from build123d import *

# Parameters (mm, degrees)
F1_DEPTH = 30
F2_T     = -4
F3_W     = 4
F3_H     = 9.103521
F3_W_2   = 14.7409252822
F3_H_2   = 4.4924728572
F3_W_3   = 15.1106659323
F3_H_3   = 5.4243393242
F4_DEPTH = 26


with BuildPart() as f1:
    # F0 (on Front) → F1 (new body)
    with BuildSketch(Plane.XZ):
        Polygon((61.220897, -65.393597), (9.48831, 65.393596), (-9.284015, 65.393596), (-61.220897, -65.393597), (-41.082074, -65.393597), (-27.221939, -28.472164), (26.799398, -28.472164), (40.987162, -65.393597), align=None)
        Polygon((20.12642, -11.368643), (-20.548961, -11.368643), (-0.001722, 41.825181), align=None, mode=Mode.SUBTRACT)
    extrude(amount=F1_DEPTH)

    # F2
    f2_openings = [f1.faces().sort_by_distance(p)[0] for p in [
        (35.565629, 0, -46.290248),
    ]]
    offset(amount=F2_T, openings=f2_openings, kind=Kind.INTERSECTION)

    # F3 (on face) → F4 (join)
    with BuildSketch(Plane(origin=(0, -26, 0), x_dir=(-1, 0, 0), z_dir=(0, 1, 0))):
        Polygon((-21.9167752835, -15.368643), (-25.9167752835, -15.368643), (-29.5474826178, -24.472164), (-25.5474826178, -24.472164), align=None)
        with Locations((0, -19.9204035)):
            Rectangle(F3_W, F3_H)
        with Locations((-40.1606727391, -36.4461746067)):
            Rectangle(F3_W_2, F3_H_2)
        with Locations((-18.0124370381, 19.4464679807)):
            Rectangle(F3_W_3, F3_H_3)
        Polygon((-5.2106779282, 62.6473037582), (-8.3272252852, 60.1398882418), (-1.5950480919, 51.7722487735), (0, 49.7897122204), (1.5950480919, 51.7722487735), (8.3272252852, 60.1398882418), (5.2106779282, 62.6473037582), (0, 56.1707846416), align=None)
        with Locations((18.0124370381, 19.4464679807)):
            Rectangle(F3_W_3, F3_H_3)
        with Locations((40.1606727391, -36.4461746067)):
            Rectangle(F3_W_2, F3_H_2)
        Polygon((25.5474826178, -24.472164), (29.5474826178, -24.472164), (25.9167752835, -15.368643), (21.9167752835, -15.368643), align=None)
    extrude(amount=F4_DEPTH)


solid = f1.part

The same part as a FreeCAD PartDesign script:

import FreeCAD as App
import Part
import Sketcher
from FreeCAD import Vector
Q = App.Units.Quantity


def faces_at(feature, points):
    """Names of the faces that lie closest to the given points."""
    faces = feature.Shape.Faces
    near = lambda p: min(range(len(faces)), key=lambda i: faces[i].distToShape(Part.Vertex(*p))[0])
    return sorted({f"Face{near(p) + 1}" for p in points})

doc = App.newDocument("Part")
params = doc.addObject("Spreadsheet::Sheet", "Params")
for row, (alias, value) in enumerate([
    ("pad1_length", "30 mm"),
    ("thickness_wall", "4 mm"),
    ("sketch2_width", "4 mm"),
    ("sketch2_length", "4 mm"),
    ("pad2_length", "26 mm"),
], start=1):
    params.set(f"A{row}", alias)
    params.set(f"B{row}", "=" + value)
    params.setAlias(f"B{row}", alias)

body = doc.addObject("PartDesign::Body", "Body")

# Sketch on XZ plane
sketch1 = body.newObject("Sketcher::SketchObject", "Sketch")
sketch1.AttachmentSupport = (doc.getObject("XZ_Plane"), [""])
sketch1.MapMode = "FlatFace"
sketch1.addGeometry(Part.LineSegment(Vector(61, -65, 0), Vector(9, 65, 0)), False)
sketch1.addGeometry(Part.LineSegment(Vector(9, 65, 0), Vector(-9, 65, 0)), False)
sketch1.addGeometry(Part.LineSegment(Vector(-9, 65, 0), Vector(-61, -65, 0)), False)
sketch1.addGeometry(Part.LineSegment(Vector(-61, -65, 0), Vector(-41, -65, 0)), False)
sketch1.addGeometry(Part.LineSegment(Vector(-41, -65, 0), Vector(-27, -28, 0)), False)
sketch1.addGeometry(Part.LineSegment(Vector(-27, -28, 0), Vector(27, -28, 0)), False)
sketch1.addGeometry(Part.LineSegment(Vector(27, -28, 0), Vector(41, -65, 0)), False)
sketch1.addGeometry(Part.LineSegment(Vector(41, -65, 0), Vector(61, -65, 0)), False)
sketch1.addGeometry(Part.LineSegment(Vector(0, 42, 0), Vector(20, -11, 0)), False)
sketch1.addGeometry(Part.LineSegment(Vector(20, -11, 0), Vector(-21, -11, 0)), False)
sketch1.addGeometry(Part.LineSegment(Vector(-21, -11, 0), Vector(0, 42, 0)), False)
sketch1.addConstraint(Sketcher.Constraint("Coincident", 0, 2, 1, 1))
sketch1.addConstraint(Sketcher.Constraint("Coincident", 1, 2, 2, 1))
sketch1.addConstraint(Sketcher.Constraint("Coincident", 2, 2, 3, 1))
sketch1.addConstraint(Sketcher.Constraint("Coincident", 3, 2, 4, 1))
sketch1.addConstraint(Sketcher.Constraint("Coincident", 4, 2, 5, 1))
sketch1.addConstraint(Sketcher.Constraint("Coincident", 5, 2, 6, 1))
sketch1.addConstraint(Sketcher.Constraint("Coincident", 6, 2, 7, 1))
sketch1.addConstraint(Sketcher.Constraint("Coincident", 7, 2, 0, 1))
sketch1.addConstraint(Sketcher.Constraint("Coincident", 8, 2, 9, 1))
sketch1.addConstraint(Sketcher.Constraint("Coincident", 9, 2, 10, 1))
sketch1.addConstraint(Sketcher.Constraint("Coincident", 10, 2, 8, 1))
sketch1.addConstraint(Sketcher.Constraint("Horizontal", 1))
sketch1.addConstraint(Sketcher.Constraint("Horizontal", 3))
sketch1.addConstraint(Sketcher.Constraint("Horizontal", 5))
sketch1.addConstraint(Sketcher.Constraint("Horizontal", 7))
sketch1.addConstraint(Sketcher.Constraint("Horizontal", 9))
sketch1.addConstraint(Sketcher.Constraint("Symmetric", 2, 2, 7, 2, -2))
sketch1.addConstraint(Sketcher.Constraint("Distance", 0, Q("140.6469 mm")))
sketch1.addConstraint(Sketcher.Constraint("DistanceX", 9, 2, 9, 1, Q("40.675381 mm")))
sketch1.addConstraint(Sketcher.Constraint("DistanceX", -1, 1, 5, 2, Q("26.799398 mm")))
sketch1.addConstraint(Sketcher.Constraint("DistanceX", 4, 2, 6, 2, Q("68.209101 mm")))
sketch1.addConstraint(Sketcher.Constraint("DistanceX", 5, 2, 7, 2, Q("34.421499 mm")))
sketch1.addConstraint(Sketcher.Constraint("Distance", 2, Q("140.722172 mm")))
sketch1.addConstraint(Sketcher.Constraint("Distance", 6, Q("39.55357 mm")))
sketch1.addConstraint(Sketcher.Constraint("Distance", 10, Q("57.02431 mm")))
sketch1.addConstraint(Sketcher.Constraint("DistanceX", 1, 2, 1, 1, Q("18.772325 mm")))
sketch1.addConstraint(Sketcher.Constraint("DistanceX", 3, 1, 3, 2, Q("20.138823 mm")))
sketch1.addConstraint(Sketcher.Constraint("DistanceX", 5, 1, 5, 2, Q("54.021337 mm")))
sketch1.addConstraint(Sketcher.Constraint("DistanceX", -1, 1, 8, 2, Q("20.12642 mm")))
sketch1.addConstraint(Sketcher.Constraint("DistanceY", -1, 1, 10, 2, Q("41.825181 mm")))
sketch1.addConstraint(Sketcher.Constraint("DistanceY", 5, 2, 8, 2, Q("17.103521 mm")))
sketch1.addConstraint(Sketcher.Constraint("DistanceX", 10, 2, 0, 2, Q("9.490032 mm")))
pad1 = body.newObject("PartDesign::Pad", "Pad")
pad1.Profile = sketch1
pad1.setExpression("Length", "Params.pad1_length")
doc.recompute()

thickness = body.newObject("PartDesign::Thickness", "Thickness")
thickness.Base = (pad1, faces_at(pad1, [(-24.488, 0, -26.157)]))
thickness.setExpression("Value", "Params.thickness_wall")
thickness.Reversed = True
thickness.Join = "Intersection"

# Sketch on XZ plane
sketch2 = body.newObject("Sketcher::SketchObject", "Sketch001")
sketch2.AttachmentSupport = (doc.getObject("XZ_Plane"), [""])
sketch2.MapMode = "FlatFace"
sketch2.AttachmentOffset = App.Placement(Vector(0, 0, 26), App.Rotation())
sketch2.addGeometry(Part.LineSegment(Vector(21.9, -15.4, 0), Vector(25.9, -15.4, 0)), False)
sketch2.addGeometry(Part.LineSegment(Vector(25.9, -15.4, 0), Vector(29.5, -24.5, 0)), False)
sketch2.addGeometry(Part.LineSegment(Vector(29.5, -24.5, 0), Vector(25.5, -24.5, 0)), False)
sketch2.addGeometry(Part.LineSegment(Vector(25.5, -24.5, 0), Vector(21.9, -15.4, 0)), False)
sketch2.addGeometry(Part.LineSegment(Vector(2, -15.4, 0), Vector(2, -24.5, 0)), False)
sketch2.addGeometry(Part.LineSegment(Vector(2, -24.5, 0), Vector(-2, -24.5, 0)), False)
sketch2.addGeometry(Part.LineSegment(Vector(-2, -24.5, 0), Vector(-2, -15.4, 0)), False)
sketch2.addGeometry(Part.LineSegment(Vector(-2, -15.4, 0), Vector(2, -15.4, 0)), False)
sketch2.addGeometry(Part.LineSegment(Vector(47.5, -34.2, 0), Vector(47.5, -38.7, 0)), False)
sketch2.addGeometry(Part.LineSegment(Vector(47.5, -38.7, 0), Vector(32.8, -38.7, 0)), False)
sketch2.addGeometry(Part.LineSegment(Vector(32.8, -38.7, 0), Vector(32.8, -34.2, 0)), False)
sketch2.addGeometry(Part.LineSegment(Vector(32.8, -34.2, 0), Vector(47.5, -34.2, 0)), False)
sketch2.addGeometry(Part.LineSegment(Vector(25.6, 22.2, 0), Vector(25.6, 16.7, 0)), False)
sketch2.addGeometry(Part.LineSegment(Vector(25.6, 16.7, 0), Vector(10.5, 16.7, 0)), False)
sketch2.addGeometry(Part.LineSegment(Vector(10.5, 16.7, 0), Vector(10.5, 22.2, 0)), False)
sketch2.addGeometry(Part.LineSegment(Vector(10.5, 22.2, 0), Vector(25.6, 22.2, 0)), False)
sketch2.addGeometry(Part.LineSegment(Vector(5.2, 62.6, 0), Vector(8.3, 60.1, 0)), False)
sketch2.addGeometry(Part.LineSegment(Vector(8.3, 60.1, 0), Vector(1.6, 51.8, 0)), False)
sketch2.addGeometry(Part.LineSegment(Vector(1.6, 51.8, 0), Vector(0, 49.8, 0)), False)
sketch2.addGeometry(Part.LineSegment(Vector(0, 49.8, 0), Vector(-1.6, 51.8, 0)), False)
sketch2.addGeometry(Part.LineSegment(Vector(-1.6, 51.8, 0), Vector(-8.3, 60.1, 0)), False)
sketch2.addGeometry(Part.LineSegment(Vector(-8.3, 60.1, 0), Vector(-5.2, 62.6, 0)), False)
sketch2.addGeometry(Part.LineSegment(Vector(-5.2, 62.6, 0), Vector(0, 56.2, 0)), False)
sketch2.addGeometry(Part.LineSegment(Vector(0, 56.2, 0), Vector(5.2, 62.6, 0)), False)
sketch2.addGeometry(Part.LineSegment(Vector(-10.5, 22.2, 0), Vector(-10.5, 16.7, 0)), False)
sketch2.addGeometry(Part.LineSegment(Vector(-10.5, 16.7, 0), Vector(-25.6, 16.7, 0)), False)
sketch2.addGeometry(Part.LineSegment(Vector(-25.6, 16.7, 0), Vector(-25.6, 22.2, 0)), False)
sketch2.addGeometry(Part.LineSegment(Vector(-25.6, 22.2, 0), Vector(-10.5, 22.2, 0)), False)
sketch2.addGeometry(Part.LineSegment(Vector(-32.8, -34.2, 0), Vector(-32.8, -38.7, 0)), False)
sketch2.addGeometry(Part.LineSegment(Vector(-32.8, -38.7, 0), Vector(-47.5, -38.7, 0)), False)
sketch2.addGeometry(Part.LineSegment(Vector(-47.5, -38.7, 0), Vector(-47.5, -34.2, 0)), False)
sketch2.addGeometry(Part.LineSegment(Vector(-47.5, -34.2, 0), Vector(-32.8, -34.2, 0)), False)
sketch2.addGeometry(Part.LineSegment(Vector(-25.5, -24.5, 0), Vector(-29.5, -24.5, 0)), False)
sketch2.addGeometry(Part.LineSegment(Vector(-29.5, -24.5, 0), Vector(-25.9, -15.4, 0)), False)
sketch2.addGeometry(Part.LineSegment(Vector(-25.9, -15.4, 0), Vector(-21.9, -15.4, 0)), False)
sketch2.addGeometry(Part.LineSegment(Vector(-21.9, -15.4, 0), Vector(-25.5, -24.5, 0)), False)
sketch2.addConstraint(Sketcher.Constraint("Coincident", 0, 2, 1, 1))
sketch2.addConstraint(Sketcher.Constraint("Coincident", 1, 2, 2, 1))
sketch2.addConstraint(Sketcher.Constraint("Coincident", 2, 2, 3, 1))
sketch2.addConstraint(Sketcher.Constraint("Coincident", 3, 2, 0, 1))
sketch2.addConstraint(Sketcher.Constraint("Coincident", 4, 2, 5, 1))
sketch2.addConstraint(Sketcher.Constraint("Coincident", 5, 2, 6, 1))
sketch2.addConstraint(Sketcher.Constraint("Coincident", 6, 2, 7, 1))
sketch2.addConstraint(Sketcher.Constraint("Coincident", 7, 2, 4, 1))
sketch2.addConstraint(Sketcher.Constraint("Coincident", 8, 2, 9, 1))
sketch2.addConstraint(Sketcher.Constraint("Coincident", 9, 2, 10, 1))
sketch2.addConstraint(Sketcher.Constraint("Coincident", 10, 2, 11, 1))
sketch2.addConstraint(Sketcher.Constraint("Coincident", 11, 2, 8, 1))
sketch2.addConstraint(Sketcher.Constraint("Coincident", 12, 2, 13, 1))
sketch2.addConstraint(Sketcher.Constraint("Coincident", 13, 2, 14, 1))
sketch2.addConstraint(Sketcher.Constraint("Coincident", 14, 2, 15, 1))
sketch2.addConstraint(Sketcher.Constraint("Coincident", 15, 2, 12, 1))
sketch2.addConstraint(Sketcher.Constraint("Coincident", 16, 2, 17, 1))
sketch2.addConstraint(Sketcher.Constraint("Coincident", 17, 2, 18, 1))
sketch2.addConstraint(Sketcher.Constraint("Coincident", 18, 2, 19, 1))
sketch2.addConstraint(Sketcher.Constraint("Coincident", 19, 2, 20, 1))
sketch2.addConstraint(Sketcher.Constraint("Coincident", 20, 2, 21, 1))
sketch2.addConstraint(Sketcher.Constraint("Coincident", 21, 2, 22, 1))
sketch2.addConstraint(Sketcher.Constraint("Coincident", 22, 2, 23, 1))
sketch2.addConstraint(Sketcher.Constraint("Coincident", 23, 2, 16, 1))
sketch2.addConstraint(Sketcher.Constraint("Coincident", 24, 2, 25, 1))
sketch2.addConstraint(Sketcher.Constraint("Coincident", 25, 2, 26, 1))
sketch2.addConstraint(Sketcher.Constraint("Coincident", 26, 2, 27, 1))
sketch2.addConstraint(Sketcher.Constraint("Coincident", 27, 2, 24, 1))
sketch2.addConstraint(Sketcher.Constraint("Coincident", 28, 2, 29, 1))
sketch2.addConstraint(Sketcher.Constraint("Coincident", 29, 2, 30, 1))
sketch2.addConstraint(Sketcher.Constraint("Coincident", 30, 2, 31, 1))
sketch2.addConstraint(Sketcher.Constraint("Coincident", 31, 2, 28, 1))
sketch2.addConstraint(Sketcher.Constraint("Coincident", 32, 2, 33, 1))
sketch2.addConstraint(Sketcher.Constraint("Coincident", 33, 2, 34, 1))
sketch2.addConstraint(Sketcher.Constraint("Coincident", 34, 2, 35, 1))
sketch2.addConstraint(Sketcher.Constraint("Coincident", 35, 2, 32, 1))
sketch2.addConstraint(Sketcher.Constraint("Horizontal", 0))
sketch2.addConstraint(Sketcher.Constraint("Horizontal", 2))
sketch2.addConstraint(Sketcher.Constraint("Vertical", 4))
sketch2.addConstraint(Sketcher.Constraint("Horizontal", 5))
sketch2.addConstraint(Sketcher.Constraint("Vertical", 6))
sketch2.addConstraint(Sketcher.Constraint("Horizontal", 7))
sketch2.addConstraint(Sketcher.Constraint("Vertical", 8))
sketch2.addConstraint(Sketcher.Constraint("Horizontal", 9))
sketch2.addConstraint(Sketcher.Constraint("Vertical", 10))
sketch2.addConstraint(Sketcher.Constraint("Horizontal", 11))
sketch2.addConstraint(Sketcher.Constraint("Vertical", 12))
sketch2.addConstraint(Sketcher.Constraint("Horizontal", 13))
sketch2.addConstraint(Sketcher.Constraint("Vertical", 14))
sketch2.addConstraint(Sketcher.Constraint("Horizontal", 15))
sketch2.addConstraint(Sketcher.Constraint("Vertical", 24))
sketch2.addConstraint(Sketcher.Constraint("Horizontal", 25))
sketch2.addConstraint(Sketcher.Constraint("Vertical", 26))
sketch2.addConstraint(Sketcher.Constraint("Horizontal", 27))
sketch2.addConstraint(Sketcher.Constraint("Vertical", 28))
sketch2.addConstraint(Sketcher.Constraint("Horizontal", 29))
sketch2.addConstraint(Sketcher.Constraint("Vertical", 30))
sketch2.addConstraint(Sketcher.Constraint("Horizontal", 31))
sketch2.addConstraint(Sketcher.Constraint("Horizontal", 32))
sketch2.addConstraint(Sketcher.Constraint("Horizontal", 34))
sketch2.addConstraint(Sketcher.Constraint("Symmetric", 17, 2, 19, 2, -2))
sketch2.addConstraint(Sketcher.Constraint("Symmetric", 16, 2, 20, 2, -2))
sketch2.addConstraint(Sketcher.Constraint("Symmetric", 21, 2, 23, 2, -2))
sketch2.addConstraint(Sketcher.Constraint("Symmetric", 13, 2, 24, 2, -2))
sketch2.addConstraint(Sketcher.Constraint("Symmetric", 15, 2, 26, 2, -2))
sketch2.addConstraint(Sketcher.Constraint("Symmetric", 9, 2, 28, 2, -2))
sketch2.addConstraint(Sketcher.Constraint("Symmetric", 11, 2, 30, 2, -2))
sketch2.addConstraint(Sketcher.Constraint("Symmetric", 1, 2, 32, 2, -2))
sketch2.addConstraint(Sketcher.Constraint("Symmetric", 0, 2, 33, 2, -2))
sketch2.addConstraint(Sketcher.Constraint("PointOnObject", 18, 2, -2))
sketch2.addConstraint(Sketcher.Constraint("PointOnObject", 22, 2, -2))
sketch2.addConstraint(Sketcher.Constraint("Parallel", 1, 3))
sketch2.addConstraint(Sketcher.Constraint("Perpendicular", 16, 17))
sketch2.addConstraint(Sketcher.Constraint("Parallel", 17, 18))
sketch2.addConstraint(Sketcher.Constraint("Perpendicular", 21, 22))
sketch2.addConstraint(Sketcher.Constraint("Parallel", 33, 35))
sketch2.addConstraint(Sketcher.Constraint("Horizontal", 2, 2, 4, 2))
sketch2.addConstraint(Sketcher.Constraint("Horizontal", 3, 2, 6, 2))
sketch2.addConstraint(Sketcher.Constraint("Equal", 2, 5))
sketch2.addConstraint(Sketcher.Constraint("Equal", 7, 32))
sketch2.addConstraint(Sketcher.Constraint("DistanceX", 0, 1, 0, 2, Q("4 mm")))
sketch2.addConstraint(Sketcher.Constraint("Distance", 16, Q("4 mm")))
sketch2.addConstraint(Sketcher.Constraint("DistanceX", -1, 1, 4, 2, Q("2 mm")))
sketch2.addConstraint(Sketcher.Constraint("DistanceY", 4, 2, 4, 1, Q("9.103521 mm")))
sketch2.addConstraint(Sketcher.Constraint("DistanceY", 12, 2, 12, 1, Q("5.424339 mm")))
sketch2.addConstraint(Sketcher.Constraint("DistanceY", -1, 1, 12, 2, Q("16.734298 mm")))
sketch2.addConstraint(Sketcher.Constraint("Distance", 18, Q("2.544529 mm")))
sketch2.addConstraint(Sketcher.Constraint("Distance", 22, Q("8.312428 mm")))
sketch2.addConstraint(Sketcher.Constraint("DistanceX", 9, 2, 9, 1, Q("14.740925 mm")))
sketch2.addConstraint(Sketcher.Constraint("DistanceX", 13, 2, 13, 1, Q("15.110666 mm")))
sketch2.addConstraint(Sketcher.Constraint("DistanceY", 8, 2, 8, 1, Q("4.492473 mm")))
sketch2.addConstraint(Sketcher.Constraint("DistanceY", 8, 2, -1, 1, Q("38.692411 mm")))
sketch2.addConstraint(Sketcher.Constraint("DistanceX", -1, 1, 9, 2, Q("32.79021 mm")))
sketch2.addConstraint(Sketcher.Constraint("DistanceX", -1, 1, 12, 2, Q("25.56777 mm")))
sketch2.addConstraint(Sketcher.Constraint("DistanceY", -1, 1, 16, 2, Q("60.139888 mm")))
sketch2.addConstraint(Sketcher.Constraint("DistanceX", -1, 1, 17, 2, Q("1.595048 mm")))
sketch2.addConstraint(Sketcher.Constraint("DistanceX", 0, 2, 8, 2, Q("21.61436 mm")))
sketch2.addConstraint(Sketcher.Constraint("DistanceY", 8, 2, 0, 2, Q("23.323768 mm")))
sketch2.addConstraint(Sketcher.Constraint("Distance", 1, Q("9.800823 mm")))
sketch2.setExpression("Constraints[80]", "Params.sketch2_width")
sketch2.setExpression("Constraints[81]", "Params.sketch2_length")
pad2 = body.newObject("PartDesign::Pad", "Pad001")
pad2.Profile = sketch2
pad2.setExpression("Length", "Params.pad2_length")
pad2.Reversed = True

doc.recompute()
